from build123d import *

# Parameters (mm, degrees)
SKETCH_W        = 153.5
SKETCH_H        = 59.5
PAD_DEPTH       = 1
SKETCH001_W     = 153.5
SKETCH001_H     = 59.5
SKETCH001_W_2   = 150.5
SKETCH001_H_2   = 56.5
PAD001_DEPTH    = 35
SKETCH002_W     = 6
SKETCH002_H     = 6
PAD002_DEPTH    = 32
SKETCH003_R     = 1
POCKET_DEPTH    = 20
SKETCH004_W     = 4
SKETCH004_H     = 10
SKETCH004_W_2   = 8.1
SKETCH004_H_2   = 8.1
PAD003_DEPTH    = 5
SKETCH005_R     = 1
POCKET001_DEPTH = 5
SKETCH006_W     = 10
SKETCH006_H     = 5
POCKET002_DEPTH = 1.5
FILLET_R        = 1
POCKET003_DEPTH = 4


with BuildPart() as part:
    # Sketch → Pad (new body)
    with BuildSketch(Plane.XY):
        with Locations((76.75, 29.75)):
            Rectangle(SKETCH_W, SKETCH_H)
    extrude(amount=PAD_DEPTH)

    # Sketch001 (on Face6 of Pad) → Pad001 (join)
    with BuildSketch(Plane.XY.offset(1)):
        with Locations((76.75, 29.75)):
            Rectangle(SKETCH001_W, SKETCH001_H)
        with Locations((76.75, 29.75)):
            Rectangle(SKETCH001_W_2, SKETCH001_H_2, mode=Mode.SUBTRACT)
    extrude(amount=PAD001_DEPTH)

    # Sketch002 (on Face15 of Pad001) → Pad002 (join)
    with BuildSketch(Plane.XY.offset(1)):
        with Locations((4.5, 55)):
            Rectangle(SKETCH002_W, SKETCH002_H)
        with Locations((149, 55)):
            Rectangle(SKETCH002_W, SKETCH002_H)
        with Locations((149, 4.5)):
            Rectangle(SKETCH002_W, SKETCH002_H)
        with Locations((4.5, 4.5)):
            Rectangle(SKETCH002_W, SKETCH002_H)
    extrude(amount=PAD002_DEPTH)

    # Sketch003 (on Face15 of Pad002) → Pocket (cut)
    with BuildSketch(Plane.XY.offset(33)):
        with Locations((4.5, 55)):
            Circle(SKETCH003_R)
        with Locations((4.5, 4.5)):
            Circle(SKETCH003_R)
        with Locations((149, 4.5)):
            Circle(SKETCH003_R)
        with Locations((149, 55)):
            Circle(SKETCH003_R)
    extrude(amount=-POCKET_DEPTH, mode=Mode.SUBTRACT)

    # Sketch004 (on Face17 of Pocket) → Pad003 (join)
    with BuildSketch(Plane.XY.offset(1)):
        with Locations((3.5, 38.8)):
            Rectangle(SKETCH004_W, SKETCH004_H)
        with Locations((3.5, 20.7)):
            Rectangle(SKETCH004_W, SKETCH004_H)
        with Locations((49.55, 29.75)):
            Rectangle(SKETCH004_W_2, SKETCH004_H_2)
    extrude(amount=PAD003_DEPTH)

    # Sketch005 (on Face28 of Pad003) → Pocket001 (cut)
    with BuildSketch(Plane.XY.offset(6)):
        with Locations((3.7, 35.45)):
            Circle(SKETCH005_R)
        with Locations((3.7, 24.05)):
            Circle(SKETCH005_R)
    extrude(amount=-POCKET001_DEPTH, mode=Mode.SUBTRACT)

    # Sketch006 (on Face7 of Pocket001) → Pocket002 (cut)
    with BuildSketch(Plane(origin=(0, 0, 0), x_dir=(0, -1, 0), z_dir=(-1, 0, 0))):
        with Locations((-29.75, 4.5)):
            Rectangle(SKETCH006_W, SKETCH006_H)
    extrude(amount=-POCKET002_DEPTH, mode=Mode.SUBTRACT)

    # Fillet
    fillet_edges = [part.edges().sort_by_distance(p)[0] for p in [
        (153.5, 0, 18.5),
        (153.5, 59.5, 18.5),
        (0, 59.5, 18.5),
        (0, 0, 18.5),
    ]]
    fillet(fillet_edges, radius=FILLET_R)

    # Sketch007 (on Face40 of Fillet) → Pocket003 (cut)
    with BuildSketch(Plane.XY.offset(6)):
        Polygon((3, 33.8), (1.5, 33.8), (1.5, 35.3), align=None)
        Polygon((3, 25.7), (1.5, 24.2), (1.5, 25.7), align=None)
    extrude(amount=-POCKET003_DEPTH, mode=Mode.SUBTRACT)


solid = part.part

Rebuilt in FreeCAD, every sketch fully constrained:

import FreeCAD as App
import Part
import Sketcher

V = App.Vector


def edges_at(feature, points):
    """Names of the edges that pass closest to the given points."""
    edges = feature.Shape.Edges
    near = lambda p: min(range(len(edges)), key=lambda i: edges[i].distToShape(Part.Vertex(*p))[0])
    return sorted({f"Edge{near(p) + 1}" for p in points})

doc = App.newDocument("Part")
params = doc.addObject("Spreadsheet::Sheet", "Params")
for row, (alias, value) in enumerate([
    ("sketch1_width", "153.5 mm"),
    ("sketch1_height", "59.5 mm"),
    ("pad1_length", "1 mm"),
    ("sketch2_width", "153.5 mm"),
    ("sketch2_width2", "150.5 mm"),
    ("sketch2_height", "59.5 mm"),
    ("sketch2_height2", "56.5 mm"),
    ("pad2_length", "35 mm"),
    ("sketch3_width", "6 mm"),
    ("pad3_length", "32 mm"),
    ("sketch4_diameter", "2 mm"),
    ("pocket1_length", "20 mm"),
    ("sketch5_width", "4 mm"),
    ("sketch5_height", "10 mm"),
    ("sketch5_width2", "8.1 mm"),
    ("pad4_length", "5 mm"),
    ("sketch6_diameter", "2 mm"),
    ("pocket2_length", "5 mm"),
    ("sketch7_width", "10 mm"),
    ("sketch7_height", "5 mm"),
    ("pocket3_length", "1.5 mm"),
    ("fillet_radius", "1 mm"),
    ("sketch8_width", "1.5 mm"),
    ("pocket4_length", "4 mm"),
], start=1):
    params.set(f"A{row}", alias)
    params.set(f"B{row}", "=" + value)
    params.setAlias(f"B{row}", alias)

body = doc.addObject("PartDesign::Body", "Body")

sketch1 = body.newObject("Sketcher::SketchObject", "Sketch")
sketch1.AttachmentSupport = (doc.getObject("XY_Plane"), [""])
sketch1.MapMode = "FlatFace"
sketch1.addGeometry(Part.LineSegment(V(0, 59.5, 0), V(0, 0, 0)), False)
sketch1.addGeometry(Part.LineSegment(V(0, 0, 0), V(153.5, 0, 0)), False)
sketch1.addGeometry(Part.LineSegment(V(153.5, 0, 0), V(153.5, 59.5, 0)), False)
sketch1.addGeometry(Part.LineSegment(V(153.5, 59.5, 0), V(0, 59.5, 0)), False)
sketch1.addConstraint(Sketcher.Constraint("Coincident", 0, 2, 1, 1))
sketch1.addConstraint(Sketcher.Constraint("Coincident", 1, 2, 2, 1))
sketch1.addConstraint(Sketcher.Constraint("Coincident", 2, 2, 3, 1))
sketch1.addConstraint(Sketcher.Constraint("Coincident", 3, 2, 0, 1))
sketch1.addConstraint(Sketcher.Constraint("Vertical", 0))
sketch1.addConstraint(Sketcher.Constraint("Horizontal", 1))
sketch1.addConstraint(Sketcher.Constraint("Vertical", 2))
sketch1.addConstraint(Sketcher.Constraint("Horizontal", 3))
sketch1.addConstraint(Sketcher.Constraint("Coincident", 0, 2, -1, 1))
sketch1.addConstraint(Sketcher.Constraint("DistanceX", 1, 1, 1, 2, 153.5))
sketch1.addConstraint(Sketcher.Constraint("DistanceY", 0, 2, 0, 1, 59.5))
sketch1.setExpression("Constraints[9]", "Params.sketch1_width")
sketch1.setExpression("Constraints[10]", "Params.sketch1_height")
pad1 = body.newObject("PartDesign::Pad", "Pad")
pad1.Profile = sketch1
pad1.setExpression("Length", "Params.pad1_length")

sketch2 = body.newObject("Sketcher::SketchObject", "Sketch001")
sketch2.AttachmentSupport = (doc.getObject("XY_Plane"), [""])
sketch2.MapMode = "FlatFace"
sketch2.AttachmentOffset = App.Placement(V(0, 0, 1), App.Rotation())
sketch2.addGeometry(Part.LineSegment(V(0, 59.5, 0), V(0, 0, 0)), False)
sketch2.addGeometry(Part.LineSegment(V(0, 0, 0), V(153.5, 0, 0)), False)
sketch2.addGeometry(Part.LineSegment(V(153.5, 0, 0), V(153.5, 59.5, 0)), False)
sketch2.addGeometry(Part.LineSegment(V(153.5, 59.5, 0), V(0, 59.5, 0)), False)
sketch2.addGeometry(Part.LineSegment(V(152, 1.5, 0), V(1.5, 1.5, 0)), False)
sketch2.addGeometry(Part.LineSegment(V(1.5, 1.5, 0), V(1.5, 58, 0)), False)
sketch2.addGeometry(Part.LineSegment(V(1.5, 58, 0), V(152, 58, 0)), False)
sketch2.addGeometry(Part.LineSegment(V(152, 58, 0), V(152, 1.5, 0)), False)
sketch2.addConstraint(Sketcher.Constraint("Coincident", 0, 2, 1, 1))
sketch2.addConstraint(Sketcher.Constraint("Coincident", 1, 2, 2, 1))
sketch2.addConstraint(Sketcher.Constraint("Coincident", 2, 2, 3, 1))
sketch2.addConstraint(Sketcher.Constraint("Coincident", 3, 2, 0, 1))
sketch2.addConstraint(Sketcher.Constraint("Coincident", 4, 2, 5, 1))
sketch2.addConstraint(Sketcher.Constraint("Coincident", 5, 2, 6, 1))
sketch2.addConstraint(Sketcher.Constraint("Coincident", 6, 2, 7, 1))
sketch2.addConstraint(Sketcher.Constraint("Coincident", 7, 2, 4, 1))
sketch2.addConstraint(Sketcher.Constraint("Vertical", 0))
sketch2.addConstraint(Sketcher.Constraint("Horizontal", 1))
sketch2.addConstraint(Sketcher.Constraint("Vertical", 2))
sketch2.addConstraint(Sketcher.Constraint("Horizontal", 3))
sketch2.addConstraint(Sketcher.Constraint("Horizontal", 4))
sketch2.addConstraint(Sketcher.Constraint("Vertical", 5))
sketch2.addConstraint(Sketcher.Constraint("Horizontal", 6))
sketch2.addConstraint(Sketcher.Constraint("Vertical", 7))
sketch2.addConstraint(Sketcher.Constraint("Coincident", 0, 2, -1, 1))
sketch2.addConstraint(Sketcher.Constraint("DistanceX", 1, 1, 1, 2, 153.5))
sketch2.addConstraint(Sketcher.Constraint("DistanceX", 4, 2, 4, 1, 150.5))
sketch2.addConstraint(Sketcher.Constraint("DistanceY", 0, 2, 0, 1, 59.5))
sketch2.addConstraint(Sketcher.Constraint("DistanceY", 5, 1, 5, 2, 56.5))
sketch2.addConstraint(Sketcher.Constraint("DistanceY", -1, 1, 5, 2, 58.0))
sketch2.addConstraint(Sketcher.Constraint("DistanceX", -1, 1, 6, 2, 152.0))
sketch2.setExpression("Constraints[17]", "Params.sketch2_width")
sketch2.setExpression("Constraints[18]", "Params.sketch2_width2")
sketch2.setExpression("Constraints[19]", "Params.sketch2_height")
sketch2.setExpression("Constraints[20]", "Params.sketch2_height2")
pad2 = body.newObject("PartDesign::Pad", "Pad001")
pad2.Profile = sketch2
pad2.setExpression("Length", "Params.pad2_length")

sketch3 = body.newObject("Sketcher::SketchObject", "Sketch002")
sketch3.AttachmentSupport = (doc.getObject("XY_Plane"), [""])
sketch3.MapMode = "FlatFace"
sketch3.AttachmentOffset = App.Placement(V(0, 0, 1), App.Rotation())
sketch3.addGeometry(Part.LineSegment(V(1.5, 58, 0), V(1.5, 52, 0)), False)
sketch3.addGeometry(Part.LineSegment(V(1.5, 52, 0), V(7.5, 52, 0)), False)
sketch3.addGeometry(Part.LineSegment(V(7.5, 52, 0), V(7.5, 58, 0)), False)
sketch3.addGeometry(Part.LineSegment(V(7.5, 58, 0), V(1.5, 58, 0)), False)
sketch3.addGeometry(Part.LineSegment(V(146, 58, 0), V(146, 52, 0)), False)
sketch3.addGeometry(Part.LineSegment(V(146, 52, 0), V(152, 52, 0)), False)
sketch3.addGeometry(Part.LineSegment(V(152, 52, 0), V(152, 58, 0)), False)
sketch3.addGeometry(Part.LineSegment(V(152, 58, 0), V(146, 58, 0)), False)
sketch3.addGeometry(Part.LineSegment(V(146, 7.5, 0), V(146, 1.5, 0)), False)
sketch3.addGeometry(Part.LineSegment(V(146, 1.5, 0), V(152, 1.5, 0)), False)
sketch3.addGeometry(Part.LineSegment(V(152, 1.5, 0), V(152, 7.5, 0)), False)
sketch3.addGeometry(Part.LineSegment(V(152, 7.5, 0), V(146, 7.5, 0)), False)
sketch3.addGeometry(Part.LineSegment(V(1.5, 7.5, 0), V(1.5, 1.5, 0)), False)
sketch3.addGeometry(Part.LineSegment(V(1.5, 1.5, 0), V(7.5, 1.5, 0)), False)
sketch3.addGeometry(Part.LineSegment(V(7.5, 1.5, 0), V(7.5, 7.5, 0)), False)
sketch3.addGeometry(Part.LineSegment(V(7.5, 7.5, 0), V(1.5, 7.5, 0)), False)
sketch3.addConstraint(Sketcher.Constraint("Coincident", 0, 2, 1, 1))
sketch3.addConstraint(Sketcher.Constraint("Coincident", 1, 2, 2, 1))
sketch3.addConstraint(Sketcher.Constraint("Coincident", 2, 2, 3, 1))
sketch3.addConstraint(Sketcher.Constraint("Coincident", 3, 2, 0, 1))
sketch3.addConstraint(Sketcher.Constraint("Coincident", 4, 2, 5, 1))
sketch3.addConstraint(Sketcher.Constraint("Coincident", 5, 2, 6, 1))
sketch3.addConstraint(Sketcher.Constraint("Coincident", 6, 2, 7, 1))
sketch3.addConstraint(Sketcher.Constraint("Coincident", 7, 2, 4, 1))
sketch3.addConstraint(Sketcher.Constraint("Coincident", 8, 2, 9, 1))
sketch3.addConstraint(Sketcher.Constraint("Coincident", 9, 2, 10, 1))
sketch3.addConstraint(Sketcher.Constraint("Coincident", 10, 2, 11, 1))
sketch3.addConstraint(Sketcher.Constraint("Coincident", 11, 2, 8, 1))
sketch3.addConstraint(Sketcher.Constraint("Coincident", 12, 2, 13, 1))
sketch3.addConstraint(Sketcher.Constraint("Coincident", 13, 2, 14, 1))
sketch3.addConstraint(Sketcher.Constraint("Coincident", 14, 2, 15, 1))
sketch3.addConstraint(Sketcher.Constraint("Coincident", 15, 2, 12, 1))
sketch3.addConstraint(Sketcher.Constraint("Vertical", 0))
sketch3.addConstraint(Sketcher.Constraint("Horizontal", 1))
sketch3.addConstraint(Sketcher.Constraint("Vertical", 2))
sketch3.addConstraint(Sketcher.Constraint("Horizontal", 3))
sketch3.addConstraint(Sketcher.Constraint("Vertical", 4))
sketch3.addConstraint(Sketcher.Constraint("Horizontal", 5))
sketch3.addConstraint(Sketcher.Constraint("Vertical", 6))
sketch3.addConstraint(Sketcher.Constraint("Horizontal", 7))
sketch3.addConstraint(Sketcher.Constraint("Vertical", 8))
sketch3.addConstraint(Sketcher.Constraint("Horizontal", 9))
sketch3.addConstraint(Sketcher.Constraint("Vertical", 10))
sketch3.addConstraint(Sketcher.Constraint("Horizontal", 11))
sketch3.addConstraint(Sketcher.Constraint("Vertical", 12))
sketch3.addConstraint(Sketcher.Constraint("Horizontal", 13))
sketch3.addConstraint(Sketcher.Constraint("Vertical", 14))
sketch3.addConstraint(Sketcher.Constraint("Horizontal", 15))
sketch3.addConstraint(Sketcher.Constraint("Horizontal", 1, 2, 4, 2))
sketch3.addConstraint(Sketcher.Constraint("Horizontal", 3, 2, 6, 2))
sketch3.addConstraint(Sketcher.Constraint("Horizontal", 9, 2, 12, 2))
sketch3.addConstraint(Sketcher.Constraint("Horizontal", 11, 2, 14, 2))
sketch3.addConstraint(Sketcher.Constraint("Vertical", 7, 2, 8, 2))
sketch3.addConstraint(Sketcher.Constraint("Vertical", 6, 2, 9, 2))
sketch3.addConstraint(Sketcher.Constraint("Vertical", 3, 2, 12, 2))
sketch3.addConstraint(Sketcher.Constraint("Vertical", 2, 2, 13, 2))
sketch3.addConstraint(Sketcher.Constraint("Equal", 3, 5))
sketch3.addConstraint(Sketcher.Constraint("Equal", 15, 0))
sketch3.addConstraint(Sketcher.Constraint("Equal", 6, 8))
sketch3.addConstraint(Sketcher.Constraint("DistanceX", 1, 1, 1, 2, 6.0))
sketch3.addConstraint(Sketcher.Constraint("DistanceY", -1, 1, 0, 2, 52.0))
sketch3.addConstraint(Sketcher.Constraint("DistanceX", -1, 1, 4, 2, 146.0))
sketch3.addConstraint(Sketcher.Constraint("DistanceX", -1, 1, 0, 2, 1.5))
sketch3.addConstraint(Sketcher.Constraint("DistanceY", -1, 1, 8, 2, 1.5))
sketch3.setExpression("Constraints[43]", "Params.sketch3_width")
pad3 = body.newObject("PartDesign::Pad", "Pad002")
pad3.Profile = sketch3
pad3.setExpression("Length", "Params.pad3_length")

sketch4 = body.newObject("Sketcher::SketchObject", "Sketch003")
sketch4.AttachmentSupport = (doc.getObject("XY_Plane"), [""])
sketch4.MapMode = "FlatFace"
sketch4.AttachmentOffset = App.Placement(V(0, 0, 33), App.Rotation())
sketch4.addGeometry(Part.Circle(V(4.5, 55, 0), V(0, 0, 1), 1), False)
sketch4.addGeometry(Part.Circle(V(4.5, 4.5, 0), V(0, 0, 1), 1), False)
sketch4.addGeometry(Part.Circle(V(149, 4.5, 0), V(0, 0, 1), 1), False)
sketch4.addGeometry(Part.Circle(V(149, 55, 0), V(0, 0, 1), 1), False)
sketch4.addConstraint(Sketcher.Constraint("Equal", 0, 1))
sketch4.addConstraint(Sketcher.Constraint("Equal", 1, 2))
sketch4.addConstraint(Sketcher.Constraint("Equal", 2, 3))
sketch4.addConstraint(Sketcher.Constraint("Horizontal", 1, 3, 2, 3))
sketch4.addConstraint(Sketcher.Constraint("Horizontal", 0, 3, 3, 3))
sketch4.addConstraint(Sketcher.Constraint("Vertical", 0, 3, 1, 3))
sketch4.addConstraint(Sketcher.Constraint("Vertical", 2, 3, 3, 3))
sketch4.addConstraint(Sketcher.Constraint("Diameter", 0, 2.0))
sketch4.addConstraint(Sketcher.Constraint("DistanceY", -1, 1, 0, 3, 55.0))
sketch4.addConstraint(Sketcher.Constraint("DistanceX", -1, 1, 2, 3, 149.0))
sketch4.addConstraint(Sketcher.Constraint("DistanceX", -1, 1, 0, 3, 4.5))
sketch4.addConstraint(Sketcher.Constraint("DistanceY", -1, 1, 1, 3, 4.5))
sketch4.setExpression("Constraints[7]", "Params.sketch4_diameter")
pocket1 = body.newObject("PartDesign::Pocket", "Pocket")
pocket1.Profile = sketch4
pocket1.setExpression("Length", "Params.pocket1_length")

sketch5 = body.newObject("Sketcher::SketchObject", "Sketch004")
sketch5.AttachmentSupport = (doc.getObject("XY_Plane"), [""])
sketch5.MapMode = "FlatFace"
sketch5.AttachmentOffset = App.Placement(V(0, 0, 1), App.Rotation())
sketch5.addGeometry(Part.LineSegment(V(1.5, 43.8, 0), V(1.5, 33.8, 0)), False)
sketch5.addGeometry(Part.LineSegment(V(1.5, 33.8, 0), V(5.5, 33.8, 0)), False)
sketch5.addGeometry(Part.LineSegment(V(5.5, 33.8, 0), V(5.5, 43.8, 0)), False)
sketch5.addGeometry(Part.LineSegment(V(5.5, 43.8, 0), V(1.5, 43.8, 0)), False)
sketch5.addGeometry(Part.LineSegment(V(1.5, 25.7, 0), V(1.5, 15.7, 0)), False)
sketch5.addGeometry(Part.LineSegment(V(1.5, 15.7, 0), V(5.5, 15.7, 0)), False)
sketch5.addGeometry(Part.LineSegment(V(5.5, 15.7, 0), V(5.5, 25.7, 0)), False)
sketch5.addGeometry(Part.LineSegment(V(5.5, 25.7, 0), V(1.5, 25.7, 0)), False)
sketch5.addGeometry(Part.LineSegment(V(45.5, 33.8, 0), V(45.5, 25.7, 0)), False)
sketch5.addGeometry(Part.LineSegment(V(45.5, 25.7, 0), V(53.6, 25.7, 0)), False)
sketch5.addGeometry(Part.LineSegment(V(53.6, 25.7, 0), V(53.6, 33.8, 0)), False)
sketch5.addGeometry(Part.LineSegment(V(53.6, 33.8, 0), V(45.5, 33.8, 0)), False)
sketch5.addConstraint(Sketcher.Constraint("Coincident", 0, 2, 1, 1))
sketch5.addConstraint(Sketcher.Constraint("Coincident", 1, 2, 2, 1))
sketch5.addConstraint(Sketcher.Constraint("Coincident", 2, 2, 3, 1))
sketch5.addConstraint(Sketcher.Constraint("Coincident", 3, 2, 0, 1))
sketch5.addConstraint(Sketcher.Constraint("Coincident", 4, 2, 5, 1))
sketch5.addConstraint(Sketcher.Constraint("Coincident", 5, 2, 6, 1))
sketch5.addConstraint(Sketcher.Constraint("Coincident", 6, 2, 7, 1))
sketch5.addConstraint(Sketcher.Constraint("Coincident", 7, 2, 4, 1))
sketch5.addConstraint(Sketcher.Constraint("Coincident", 8, 2, 9, 1))
sketch5.addConstraint(Sketcher.Constraint("Coincident", 9, 2, 10, 1))
sketch5.addConstraint(Sketcher.Constraint("Coincident", 10, 2, 11, 1))
sketch5.addConstraint(Sketcher.Constraint("Coincident", 11, 2, 8, 1))
sketch5.addConstraint(Sketcher.Constraint("Vertical", 0))
sketch5.addConstraint(Sketcher.Constraint("Horizontal", 1))
sketch5.addConstraint(Sketcher.Constraint("Vertical", 2))
sketch5.addConstraint(Sketcher.Constraint("Horizontal", 3))
sketch5.addConstraint(Sketcher.Constraint("Vertical", 4))
sketch5.addConstraint(Sketcher.Constraint("Horizontal", 5))
sketch5.addConstraint(Sketcher.Constraint("Vertical", 6))
sketch5.addConstraint(Sketcher.Constraint("Horizontal", 7))
sketch5.addConstraint(Sketcher.Constraint("Vertical", 8))
sketch5.addConstraint(Sketcher.Constraint("Horizontal", 9))
sketch5.addConstraint(Sketcher.Constraint("Vertical", 10))
sketch5.addConstraint(Sketcher.Constraint("Horizontal", 11))
sketch5.addConstraint(Sketcher.Constraint("Horizontal", 7, 2, 8, 2))
sketch5.addConstraint(Sketcher.Constraint("Horizontal", 1, 2, 10, 2))
sketch5.addConstraint(Sketcher.Constraint("Vertical", 3, 2, 4, 2))
sketch5.addConstraint(Sketcher.Constraint("Vertical", 2, 2, 5, 2))
sketch5.addConstraint(Sketcher.Constraint("Equal", 2, 4))
sketch5.addConstraint(Sketcher.Constraint("Equal", 11, 8))
sketch5.addConstraint(Sketcher.Constraint("DistanceX", 1, 1, 1, 2, 4.0))
sketch5.addConstraint(Sketcher.Constraint("DistanceY", 0, 2, 0, 1, 10.0))
sketch5.addConstraint(Sketcher.Constraint("DistanceX", 9, 1, 9, 2, 8.1))
sketch5.addConstraint(Sketcher.Constraint("DistanceX", 6, 2, 8, 2, 40.0))
sketch5.addConstraint(Sketcher.Constraint("DistanceX", -1, 1, 0, 2, 1.5))
sketch5.addConstraint(Sketcher.Constraint("DistanceY", -1, 1, 0, 2, 33.8))
sketch5.setExpression("Constraints[30]", "Params.sketch5_width")
sketch5.setExpression("Constraints[31]", "Params.sketch5_height")
sketch5.setExpression("Constraints[32]", "Params.sketch5_width2")
pad4 = body.newObject("PartDesign::Pad", "Pad003")
pad4.Profile = sketch5
pad4.setExpression("Length", "Params.pad4_length")

sketch6 = body.newObject("Sketcher::SketchObject", "Sketch005")
sketch6.AttachmentSupport = (doc.getObject("XY_Plane"), [""])
sketch6.MapMode = "FlatFace"
sketch6.AttachmentOffset = App.Placement(V(0, 0, 6), App.Rotation())
sketch6.addGeometry(Part.Circle(V(3.7, 35.45, 0), V(0, 0, 1), 1), False)
sketch6.addGeometry(Part.Circle(V(3.7, 24.05, 0), V(0, 0, 1), 1), False)
sketch6.addConstraint(Sketcher.Constraint("Equal", 0, 1))
sketch6.addConstraint(Sketcher.Constraint("Vertical", 0, 3, 1, 3))
sketch6.addConstraint(Sketcher.Constraint("Diameter", 0, 2.0))
sketch6.addConstraint(Sketcher.Constraint("DistanceX", -1, 1, 0, 3, 3.7))
sketch6.addConstraint(Sketcher.Constraint("DistanceY", 1, 3, 0, 3, 11.4))
sketch6.addConstraint(Sketcher.Constraint("DistanceY", -1, 1, 0, 3, 35.45))
sketch6.setExpression("Constraints[2]", "Params.sketch6_diameter")
pocket2 = body.newObject("PartDesign::Pocket", "Pocket001")
pocket2.Profile = sketch6
pocket2.setExpression("Length", "Params.pocket2_length")

sketch7 = body.newObject("Sketcher::SketchObject", "Sketch006")
sketch7.AttachmentSupport = (doc.getObject("YZ_Plane"), [""])
sketch7.MapMode = "FlatFace"
sketch7.addGeometry(Part.LineSegment(V(34.75, 7, 0), V(34.75, 2, 0)), False)
sketch7.addGeometry(Part.LineSegment(V(34.75, 2, 0), V(24.75, 2, 0)), False)
sketch7.addGeometry(Part.LineSegment(V(24.75, 2, 0), V(24.75, 7, 0)), False)
sketch7.addGeometry(Part.LineSegment(V(24.75, 7, 0), V(34.75, 7, 0)), False)
sketch7.addConstraint(Sketcher.Constraint("Coincident", 0, 2, 1, 1))
sketch7.addConstraint(Sketcher.Constraint("Coincident", 1, 2, 2, 1))
sketch7.addConstraint(Sketcher.Constraint("Coincident", 2, 2, 3, 1))
sketch7.addConstraint(Sketcher.Constraint("Coincident", 3, 2, 0, 1))
sketch7.addConstraint(Sketcher.Constraint("Vertical", 0))
sketch7.addConstraint(Sketcher.Constraint("Horizontal", 1))
sketch7.addConstraint(Sketcher.Constraint("Vertical", 2))
sketch7.addConstraint(Sketcher.Constraint("Horizontal", 3))
sketch7.addConstraint(Sketcher.Constraint("DistanceX", 1, 2, 1, 1, 10.0))
sketch7.addConstraint(Sketcher.Constraint("DistanceY", 0, 2, 0, 1, 5.0))
sketch7.addConstraint(Sketcher.Constraint("DistanceY", -1, 1, 0, 2, 2.0))
sketch7.addConstraint(Sketcher.Constraint("DistanceX", -1, 1, 0, 2, 34.75))
sketch7.setExpression("Constraints[8]", "Params.sketch7_width")
sketch7.setExpression("Constraints[9]", "Params.sketch7_height")
pocket3 = body.newObject("PartDesign::Pocket", "Pocket002")
pocket3.Profile = sketch7
pocket3.setExpression("Length", "Params.pocket3_length")
pocket3.Reversed = True
doc.recompute()

fillet = body.newObject("PartDesign::Fillet", "Fillet")
fillet.Base = (pocket3, edges_at(pocket3, [
    (153.5, 0, 18),
    (153.5, 59.5, 18),
    (0, 59.5, 18),
    (0, 0, 18),
]))
fillet.setExpression("Radius", "Params.fillet_radius")

sketch8 = body.newObject("Sketcher::SketchObject", "Sketch007")
sketch8.AttachmentSupport = (doc.getObject("XY_Plane"), [""])
sketch8.MapMode = "FlatFace"
sketch8.AttachmentOffset = App.Placement(V(0, 0, 6), App.Rotation())
sketch8.addGeometry(Part.LineSegment(V(1.5, 33.8, 0), V(3, 33.8, 0)), False)
sketch8.addGeometry(Part.LineSegment(V(3, 33.8, 0), V(1.5, 35.3, 0)), False)
sketch8.addGeometry(Part.LineSegment(V(1.5, 35.3, 0), V(1.5, 33.8, 0)), False)
sketch8.addGeometry(Part.LineSegment(V(1.5, 24.2, 0), V(3, 25.7, 0)), False)
sketch8.addGeometry(Part.LineSegment(V(3, 25.7, 0), V(1.5, 25.7, 0)), False)
sketch8.addGeometry(Part.LineSegment(V(1.5, 25.7, 0), V(1.5, 24.2, 0)), False)
sketch8.addConstraint(Sketcher.Constraint("Coincident", 0, 2, 1, 1))
sketch8.addConstraint(Sketcher.Constraint("Coincident", 1, 2, 2, 1))
sketch8.addConstraint(Sketcher.Constraint("Coincident", 2, 2, 0, 1))
sketch8.addConstraint(Sketcher.Constraint("Coincident", 3, 2, 4, 1))
sketch8.addConstraint(Sketcher.Constraint("Coincident", 4, 2, 5, 1))
sketch8.addConstraint(Sketcher.Constraint("Coincident", 5, 2, 3, 1))
sketch8.addConstraint(Sketcher.Constraint("Horizontal", 0))
sketch8.addConstraint(Sketcher.Constraint("Vertical", 2))
sketch8.addConstraint(Sketcher.Constraint("Horizontal", 4))
sketch8.addConstraint(Sketcher.Constraint("Vertical", 5))
sketch8.addConstraint(Sketcher.Constraint("Perpendicular", 1, 3))
sketch8.addConstraint(Sketcher.Constraint("Vertical", 0, 2, 3, 2))
sketch8.addConstraint(Sketcher.Constraint("Vertical", 2, 2, 4, 2))
sketch8.addConstraint(Sketcher.Constraint("Equal", 4, 2))
sketch8.addConstraint(Sketcher.Constraint("DistanceX", 0, 1, 0, 2, 1.5))
sketch8.addConstraint(Sketcher.Constraint("DistanceX", -1, 1, 0, 2, 3.0))
sketch8.addConstraint(Sketcher.Constraint("DistanceY", -1, 1, 0, 2, 33.8))
sketch8.addConstraint(Sketcher.Constraint("DistanceY", -1, 1, 3, 2, 25.7))
sketch8.setExpression("Constraints[14]", "Params.sketch8_width")
pocket4 = body.newObject("PartDesign::Pocket", "Pocket003")
pocket4.Profile = sketch8
pocket4.setExpression("Length", "Params.pocket4_length")

doc.recompute()
